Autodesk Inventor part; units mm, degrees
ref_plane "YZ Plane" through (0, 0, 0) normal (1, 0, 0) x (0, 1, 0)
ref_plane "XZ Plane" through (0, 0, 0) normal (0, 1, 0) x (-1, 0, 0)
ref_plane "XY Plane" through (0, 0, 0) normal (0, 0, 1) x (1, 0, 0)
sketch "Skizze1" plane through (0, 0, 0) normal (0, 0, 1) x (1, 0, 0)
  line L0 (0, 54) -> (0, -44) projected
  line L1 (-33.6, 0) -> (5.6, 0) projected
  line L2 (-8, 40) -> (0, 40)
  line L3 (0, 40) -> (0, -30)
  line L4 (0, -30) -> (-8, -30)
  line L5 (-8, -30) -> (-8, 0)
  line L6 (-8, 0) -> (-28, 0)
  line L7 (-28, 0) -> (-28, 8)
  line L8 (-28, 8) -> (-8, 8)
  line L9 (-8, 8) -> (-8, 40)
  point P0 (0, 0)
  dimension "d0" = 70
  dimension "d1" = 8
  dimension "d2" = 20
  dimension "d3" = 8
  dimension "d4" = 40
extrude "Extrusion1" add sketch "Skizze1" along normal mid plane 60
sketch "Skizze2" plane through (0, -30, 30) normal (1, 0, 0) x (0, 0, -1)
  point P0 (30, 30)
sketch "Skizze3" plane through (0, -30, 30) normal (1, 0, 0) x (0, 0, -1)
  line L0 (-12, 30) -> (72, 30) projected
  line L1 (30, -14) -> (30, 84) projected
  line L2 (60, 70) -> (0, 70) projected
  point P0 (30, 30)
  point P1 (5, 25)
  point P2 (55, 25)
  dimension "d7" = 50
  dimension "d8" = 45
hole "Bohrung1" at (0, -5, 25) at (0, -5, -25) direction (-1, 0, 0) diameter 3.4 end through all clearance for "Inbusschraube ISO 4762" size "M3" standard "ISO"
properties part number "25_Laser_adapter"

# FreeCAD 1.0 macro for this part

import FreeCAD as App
import Part
import Sketcher
from FreeCAD import Vector


def add_polygon(sketch, points):
    """Adds a closed chain of lines whose ends are joined by coincident constraints."""
    first, n = sketch.GeometryCount, len(points)
    for a, b in zip(points, points[1:] + points[:1]):
        sketch.addGeometry(Part.LineSegment(App.Vector(*a, 0), App.Vector(*b, 0)), False)
    for i in range(n):
        sketch.addConstraint(Sketcher.Constraint("Coincident", first + i, 2, first + (i + 1) % n, 1))

doc = App.newDocument("Part")
body = doc.addObject("PartDesign::Body", "Body")

sketch1 = body.newObject("Sketcher::SketchObject", "Sketch")
sketch1.AttachmentSupport = (doc.getObject("XY_Plane"), [""])
sketch1.MapMode = "FlatFace"
add_polygon(sketch1, [(0, 40), (-8, 40), (-8, 8), (-28, 8), (-28, 0), (-8, 0), (-8, -30), (0, -30)])
sketch1.addConstraint([
    Sketcher.Constraint("Horizontal", 0),
    Sketcher.Constraint("Vertical", 1),
    Sketcher.Constraint("Horizontal", 2),
    Sketcher.Constraint("Vertical", 3),
    Sketcher.Constraint("Horizontal", 4),
    Sketcher.Constraint("Vertical", 5),
    Sketcher.Constraint("Horizontal", 6),
    Sketcher.Constraint("Vertical", 7),
    Sketcher.Constraint("PointOnObject", 3, 2, -1),
    Sketcher.Constraint("PointOnObject", 6, 2, -2),
    Sketcher.Constraint("Vertical", 1, 2, 4, 2),
    Sketcher.Constraint("Equal", 6, 3),
    Sketcher.Constraint("DistanceX", 0, 2, 0, 1, 8.0),
    Sketcher.Constraint("DistanceX", 2, 2, 2, 1, 20.0),
    Sketcher.Constraint("DistanceY", 7, 1, 7, 2, 70.0),
    Sketcher.Constraint("DistanceY", -1, 1, 0, 2, 40.0),
])
pad1 = body.newObject("PartDesign::Pad", "Pad")
pad1.Profile = sketch1
pad1.Length = 60
pad1.Midplane = True

sketch2 = body.newObject("Sketcher::SketchObject", "Sketch001")
sketch2.AttachmentSupport = (doc.getObject("YZ_Plane"), [""])
sketch2.MapMode = "FlatFace"
sketch2.addGeometry([
    Part.Circle(Vector(-5, 25, 0), Vector(0, 0, 1), 1.7),
    Part.Circle(Vector(-5, -25, 0), Vector(0, 0, 1), 1.7),
], False)
sketch2.addConstraint([
    Sketcher.Constraint("Equal", 0, 1),
    Sketcher.Constraint("Symmetric", 0, 3, 1, 3, -1),
    Sketcher.Constraint("Diameter", 0, 3.4),
    Sketcher.Constraint("DistanceX", 0, 3, -1, 1, 5.0),
    Sketcher.Constraint("DistanceY", -1, 1, 0, 3, 25.0),
])
doc.recompute()
hole = body.newObject("PartDesign::Hole", "Hole")
hole.Profile = sketch2
hole.ThreadType = "None"
hole.Diameter = 3.4
hole.DepthType = "ThroughAll"

doc.recompute()
